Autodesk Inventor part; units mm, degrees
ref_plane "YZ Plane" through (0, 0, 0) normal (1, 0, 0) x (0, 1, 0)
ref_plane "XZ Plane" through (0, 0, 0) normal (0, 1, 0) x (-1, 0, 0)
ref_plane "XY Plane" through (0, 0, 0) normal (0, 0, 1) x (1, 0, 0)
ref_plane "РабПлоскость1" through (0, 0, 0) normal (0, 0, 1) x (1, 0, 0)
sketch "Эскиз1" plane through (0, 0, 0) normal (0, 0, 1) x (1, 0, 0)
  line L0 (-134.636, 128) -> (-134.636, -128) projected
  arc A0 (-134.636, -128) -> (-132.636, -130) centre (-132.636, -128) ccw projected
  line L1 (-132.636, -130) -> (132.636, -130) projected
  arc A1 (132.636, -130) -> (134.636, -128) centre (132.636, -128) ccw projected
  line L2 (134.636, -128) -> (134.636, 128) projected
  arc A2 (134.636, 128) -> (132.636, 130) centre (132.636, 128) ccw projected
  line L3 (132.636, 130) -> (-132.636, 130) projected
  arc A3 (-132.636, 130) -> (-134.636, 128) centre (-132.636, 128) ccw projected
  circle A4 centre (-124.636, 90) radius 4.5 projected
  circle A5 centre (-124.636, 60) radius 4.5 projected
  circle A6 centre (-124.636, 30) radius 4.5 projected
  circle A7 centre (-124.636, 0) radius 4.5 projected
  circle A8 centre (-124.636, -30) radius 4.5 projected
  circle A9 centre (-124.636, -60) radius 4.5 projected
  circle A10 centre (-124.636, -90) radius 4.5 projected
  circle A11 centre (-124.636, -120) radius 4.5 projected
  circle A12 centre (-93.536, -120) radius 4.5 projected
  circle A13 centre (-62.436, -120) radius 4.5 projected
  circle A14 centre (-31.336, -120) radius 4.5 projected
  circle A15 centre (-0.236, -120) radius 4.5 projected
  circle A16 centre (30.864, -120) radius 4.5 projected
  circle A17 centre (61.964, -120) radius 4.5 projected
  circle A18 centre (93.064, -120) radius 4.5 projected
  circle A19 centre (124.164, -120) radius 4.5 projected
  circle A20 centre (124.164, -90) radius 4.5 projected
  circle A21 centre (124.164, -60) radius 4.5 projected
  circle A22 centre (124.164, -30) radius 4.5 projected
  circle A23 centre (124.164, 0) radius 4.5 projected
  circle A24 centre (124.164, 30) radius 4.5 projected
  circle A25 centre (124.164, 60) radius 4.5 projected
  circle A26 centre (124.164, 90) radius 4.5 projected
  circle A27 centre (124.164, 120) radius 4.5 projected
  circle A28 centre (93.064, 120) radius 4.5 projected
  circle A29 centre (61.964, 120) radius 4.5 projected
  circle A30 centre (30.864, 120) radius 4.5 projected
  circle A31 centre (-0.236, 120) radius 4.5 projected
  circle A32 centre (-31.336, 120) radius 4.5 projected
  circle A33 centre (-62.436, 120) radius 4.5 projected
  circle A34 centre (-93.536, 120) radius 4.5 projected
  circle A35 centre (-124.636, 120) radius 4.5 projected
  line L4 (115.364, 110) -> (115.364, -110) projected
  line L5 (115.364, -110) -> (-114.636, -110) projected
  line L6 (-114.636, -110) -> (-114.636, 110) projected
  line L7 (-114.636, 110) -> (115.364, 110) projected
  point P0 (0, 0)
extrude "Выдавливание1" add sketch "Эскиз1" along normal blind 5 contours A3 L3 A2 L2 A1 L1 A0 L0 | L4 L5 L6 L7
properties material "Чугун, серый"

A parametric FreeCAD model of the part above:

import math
import FreeCAD as App
import Part
import Sketcher

doc = App.newDocument("Part")
body = doc.addObject("PartDesign::Body", "Body")

sketch1 = body.newObject("Sketcher::SketchObject", "Sketch")
sketch1.AttachmentSupport = (doc.getObject("XY_Plane"), [""])
sketch1.MapMode = "FlatFace"
sketch1.addGeometry(Part.ArcOfCircle(Part.Circle(App.Vector(-132.636, 128, 0), App.Vector(0, 0, 1), 2), math.radians(90), math.radians(180)), False)
sketch1.addGeometry(Part.LineSegment(App.Vector(-134.636, 128, 0), App.Vector(-134.636, -128, 0)), False)
sketch1.addGeometry(Part.ArcOfCircle(Part.Circle(App.Vector(-132.636, -128, 0), App.Vector(0, 0, 1), 2), math.radians(180), math.radians(270)), False)
sketch1.addGeometry(Part.LineSegment(App.Vector(-132.636, -130, 0), App.Vector(132.636, -130, 0)), False)
sketch1.addGeometry(Part.ArcOfCircle(Part.Circle(App.Vector(132.636, -128, 0), App.Vector(0, 0, 1), 2), math.radians(-90), math.radians(0)), False)
sketch1.addGeometry(Part.LineSegment(App.Vector(134.636, -128, 0), App.Vector(134.636, 128, 0)), False)
sketch1.addGeometry(Part.ArcOfCircle(Part.Circle(App.Vector(132.636, 128, 0), App.Vector(0, 0, 1), 2), math.radians(0), math.radians(90)), False)
sketch1.addGeometry(Part.LineSegment(App.Vector(132.636, 130, 0), App.Vector(-132.636, 130, 0)), False)
sketch1.addGeometry(Part.Circle(App.Vector(-124.636, -120, 0), App.Vector(0, 0, 1), 4.5), False)
sketch1.addGeometry(Part.Circle(App.Vector(-93.536, -120, 0), App.Vector(0, 0, 1), 4.5), False)
sketch1.addGeometry(Part.Circle(App.Vector(-124.636, -90, 0), App.Vector(0, 0, 1), 4.5), False)
sketch1.addGeometry(Part.Circle(App.Vector(-62.436, -120, 0), App.Vector(0, 0, 1), 4.5), False)
sketch1.addGeometry(Part.Circle(App.Vector(-31.336, -120, 0), App.Vector(0, 0, 1), 4.5), False)
sketch1.addGeometry(Part.Circle(App.Vector(-0.236, -120, 0), App.Vector(0, 0, 1), 4.5), False)
sketch1.addGeometry(Part.Circle(App.Vector(-124.636, -60, 0), App.Vector(0, 0, 1), 4.5), False)
sketch1.addGeometry(Part.Circle(App.Vector(-124.636, -30, 0), App.Vector(0, 0, 1), 4.5), False)
sketch1.addGeometry(Part.Circle(App.Vector(30.864, -120, 0), App.Vector(0, 0, 1), 4.5), False)
sketch1.addGeometry(Part.Circle(App.Vector(61.964, -120, 0), App.Vector(0, 0, 1), 4.5), False)
sketch1.addGeometry(Part.Circle(App.Vector(93.064, -120, 0), App.Vector(0, 0, 1), 4.5), False)
sketch1.addGeometry(Part.Circle(App.Vector(124.164, -120, 0), App.Vector(0, 0, 1), 4.5), False)
sketch1.addGeometry(Part.Circle(App.Vector(124.164, -90, 0), App.Vector(0, 0, 1), 4.5), False)
sketch1.addGeometry(Part.Circle(App.Vector(124.164, -60, 0), App.Vector(0, 0, 1), 4.5), False)
sketch1.addGeometry(Part.Circle(App.Vector(124.164, -30, 0), App.Vector(0, 0, 1), 4.5), False)
sketch1.addGeometry(Part.Circle(App.Vector(-124.636, 0, 0), App.Vector(0, 0, 1), 4.5), False)
sketch1.addGeometry(Part.Circle(App.Vector(-124.636, 30, 0), App.Vector(0, 0, 1), 4.5), False)
sketch1.addGeometry(Part.Circle(App.Vector(-124.636, 60, 0), App.Vector(0, 0, 1), 4.5), False)
sketch1.addGeometry(Part.Circle(App.Vector(-124.636, 90, 0), App.Vector(0, 0, 1), 4.5), False)
sketch1.addGeometry(Part.Circle(App.Vector(-124.636, 120, 0), App.Vector(0, 0, 1), 4.5), False)
sketch1.addGeometry(Part.Circle(App.Vector(-93.536, 120, 0), App.Vector(0, 0, 1), 4.5), False)
sketch1.addGeometry(Part.Circle(App.Vector(-62.436, 120, 0), App.Vector(0, 0, 1), 4.5), False)
sketch1.addGeometry(Part.Circle(App.Vector(-31.336, 120, 0), App.Vector(0, 0, 1), 4.5), False)
sketch1.addGeometry(Part.Circle(App.Vector(-0.236, 120, 0), App.Vector(0, 0, 1), 4.5), False)
sketch1.addGeometry(Part.Circle(App.Vector(124.164, 0, 0), App.Vector(0, 0, 1), 4.5), False)
sketch1.addGeometry(Part.Circle(App.Vector(124.164, 30, 0), App.Vector(0, 0, 1), 4.5), False)
sketch1.addGeometry(Part.Circle(App.Vector(124.164, 60, 0), App.Vector(0, 0, 1), 4.5), False)
sketch1.addGeometry(Part.Circle(App.Vector(30.864, 120, 0), App.Vector(0, 0, 1), 4.5), False)
sketch1.addGeometry(Part.Circle(App.Vector(61.964, 120, 0), App.Vector(0, 0, 1), 4.5), False)
sketch1.addGeometry(Part.Circle(App.Vector(124.164, 90, 0), App.Vector(0, 0, 1), 4.5), False)
sketch1.addGeometry(Part.Circle(App.Vector(93.064, 120, 0), App.Vector(0, 0, 1), 4.5), False)
sketch1.addGeometry(Part.Circle(App.Vector(124.164, 120, 0), App.Vector(0, 0, 1), 4.5), False)
sketch1.addConstraint(Sketcher.Constraint("Tangent", 0, 2, 1, 1))
sketch1.addConstraint(Sketcher.Constraint("Tangent", 1, 2, 2, 1))
sketch1.addConstraint(Sketcher.Constraint("Tangent", 2, 2, 3, 1))
sketch1.addConstraint(Sketcher.Constraint("Tangent", 3, 2, 4, 1))
sketch1.addConstraint(Sketcher.Constraint("Tangent", 4, 2, 5, 1))
sketch1.addConstraint(Sketcher.Constraint("Tangent", 5, 2, 6, 1))
sketch1.addConstraint(Sketcher.Constraint("Tangent", 6, 2, 7, 1))
sketch1.addConstraint(Sketcher.Constraint("Tangent", 7, 2, 0, 1))
sketch1.addConstraint(Sketcher.Constraint("Vertical", 1))
sketch1.addConstraint(Sketcher.Constraint("Horizontal", 3))
sketch1.addConstraint(Sketcher.Constraint("Vertical", 5))
sketch1.addConstraint(Sketcher.Constraint("Horizontal", 7))
sketch1.addConstraint(Sketcher.Constraint("Equal", 0, 2))
sketch1.addConstraint(Sketcher.Constraint("Equal", 2, 4))
sketch1.addConstraint(Sketcher.Constraint("Equal", 4, 6))
sketch1.addConstraint(Sketcher.Constraint("Equal", 8, 9))
sketch1.addConstraint(Sketcher.Constraint("Equal", 9, 10))
sketch1.addConstraint(Sketcher.Constraint("Equal", 10, 11))
sketch1.addConstraint(Sketcher.Constraint("Equal", 11, 12))
sketch1.addConstraint(Sketcher.Constraint("Equal", 12, 13))
sketch1.addConstraint(Sketcher.Constraint("Equal", 13, 14))
sketch1.addConstraint(Sketcher.Constraint("Equal", 14, 15))
sketch1.addConstraint(Sketcher.Constraint("Equal", 15, 16))
sketch1.addConstraint(Sketcher.Constraint("Equal", 16, 17))
sketch1.addConstraint(Sketcher.Constraint("Equal", 17, 18))
sketch1.addConstraint(Sketcher.Constraint("Equal", 18, 19))
sketch1.addConstraint(Sketcher.Constraint("Equal", 19, 20))
sketch1.addConstraint(Sketcher.Constraint("Equal", 20, 21))
sketch1.addConstraint(Sketcher.Constraint("Equal", 21, 22))
sketch1.addConstraint(Sketcher.Constraint("Equal", 22, 23))
sketch1.addConstraint(Sketcher.Constraint("Equal", 23, 24))
sketch1.addConstraint(Sketcher.Constraint("Equal", 24, 25))
sketch1.addConstraint(Sketcher.Constraint("Equal", 25, 26))
sketch1.addConstraint(Sketcher.Constraint("Equal", 26, 27))
sketch1.addConstraint(Sketcher.Constraint("Equal", 27, 28))
sketch1.addConstraint(Sketcher.Constraint("Equal", 28, 29))
sketch1.addConstraint(Sketcher.Constraint("Equal", 29, 30))
sketch1.addConstraint(Sketcher.Constraint("Equal", 30, 31))
sketch1.addConstraint(Sketcher.Constraint("Equal", 31, 32))
sketch1.addConstraint(Sketcher.Constraint("Equal", 32, 33))
sketch1.addConstraint(Sketcher.Constraint("Equal", 33, 34))
sketch1.addConstraint(Sketcher.Constraint("Equal", 34, 35))
sketch1.addConstraint(Sketcher.Constraint("Equal", 35, 36))
sketch1.addConstraint(Sketcher.Constraint("Equal", 36, 37))
sketch1.addConstraint(Sketcher.Constraint("Equal", 37, 38))
sketch1.addConstraint(Sketcher.Constraint("Equal", 38, 39))
sketch1.addConstraint(Sketcher.Constraint("Symmetric", 0, 3, 4, 3, -1, 1))
sketch1.addConstraint(Sketcher.Constraint("Symmetric", 15, 3, 24, 3, -1))
sketch1.addConstraint(Sketcher.Constraint("Symmetric", 14, 3, 25, 3, -1))
sketch1.addConstraint(Sketcher.Constraint("Symmetric", 10, 3, 26, 3, -1))
sketch1.addConstraint(Sketcher.Constraint("Symmetric", 8, 3, 27, 3, -1))
sketch1.addConstraint(Sketcher.Constraint("Symmetric", 9, 3, 28, 3, -1))
sketch1.addConstraint(Sketcher.Constraint("Symmetric", 11, 3, 29, 3, -1))
sketch1.addConstraint(Sketcher.Constraint("Symmetric", 12, 3, 30, 3, -1))
sketch1.addConstraint(Sketcher.Constraint("Symmetric", 13, 3, 31, 3, -1))
sketch1.addConstraint(Sketcher.Constraint("Symmetric", 22, 3, 33, 3, -1))
sketch1.addConstraint(Sketcher.Constraint("Symmetric", 21, 3, 34, 3, -1))
sketch1.addConstraint(Sketcher.Constraint("Symmetric", 16, 3, 35, 3, -1))
sketch1.addConstraint(Sketcher.Constraint("Symmetric", 17, 3, 36, 3, -1))
sketch1.addConstraint(Sketcher.Constraint("Symmetric", 20, 3, 37, 3, -1))
sketch1.addConstraint(Sketcher.Constraint("Symmetric", 18, 3, 38, 3, -1))
sketch1.addConstraint(Sketcher.Constraint("Symmetric", 19, 3, 39, 3, -1))
sketch1.addConstraint(Sketcher.Constraint("PointOnObject", 23, 3, -1))
sketch1.addConstraint(Sketcher.Constraint("PointOnObject", 32, 3, -1))
sketch1.addConstraint(Sketcher.Constraint("Horizontal", 8, 3, 9, 3))
sketch1.addConstraint(Sketcher.Constraint("Horizontal", 9, 3, 11, 3))
sketch1.addConstraint(Sketcher.Constraint("Horizontal", 11, 3, 12, 3))
sketch1.addConstraint(Sketcher.Constraint("Horizontal", 12, 3, 13, 3))
sketch1.addConstraint(Sketcher.Constraint("Horizontal", 13, 3, 16, 3))
sketch1.addConstraint(Sketcher.Constraint("Horizontal", 16, 3, 17, 3))
sketch1.addConstraint(Sketcher.Constraint("Horizontal", 17, 3, 18, 3))
sketch1.addConstraint(Sketcher.Constraint("Horizontal", 18, 3, 19, 3))
sketch1.addConstraint(Sketcher.Constraint("Horizontal", 10, 3, 20, 3))
sketch1.addConstraint(Sketcher.Constraint("Horizontal", 14, 3, 21, 3))
sketch1.addConstraint(Sketcher.Constraint("Horizontal", 15, 3, 22, 3))
sketch1.addConstraint(Sketcher.Constraint("Vertical", 8, 3, 10, 3))
sketch1.addConstraint(Sketcher.Constraint("Vertical", 10, 3, 14, 3))
sketch1.addConstraint(Sketcher.Constraint("Vertical", 14, 3, 15, 3))
sketch1.addConstraint(Sketcher.Constraint("Vertical", 19, 3, 20, 3))
sketch1.addConstraint(Sketcher.Constraint("Vertical", 20, 3, 21, 3))
sketch1.addConstraint(Sketcher.Constraint("Vertical", 21, 3, 22, 3))
sketch1.addConstraint(Sketcher.Constraint("Vertical", 15, 3, 23, 3))
sketch1.addConstraint(Sketcher.Constraint("Vertical", 22, 3, 32, 3))
sketch1.addConstraint(Sketcher.Constraint("Diameter", 8, 9.0))
sketch1.addConstraint(Sketcher.Constraint("Radius", 0, 2.0))
sketch1.addConstraint(Sketcher.Constraint("DistanceY", 1, 2, 1, 1, 256.0))
sketch1.addConstraint(Sketcher.Constraint("DistanceY", 8, 3, -1, 1, 120.0))
sketch1.addConstraint(Sketcher.Constraint("DistanceY", 10, 3, -1, 1, 90.0))
sketch1.addConstraint(Sketcher.Constraint("DistanceY", 14, 3, -1, 1, 60.0))
sketch1.addConstraint(Sketcher.Constraint("DistanceY", 15, 3, -1, 1, 30.0))
sketch1.addConstraint(Sketcher.Constraint("DistanceX", 2, 3, 8, 3, 8.0))
sketch1.addConstraint(Sketcher.Constraint("DistanceX", 8, 3, 9, 3, 31.1))
sketch1.addConstraint(Sketcher.Constraint("DistanceX", 9, 3, 11, 3, 31.1))
sketch1.addConstraint(Sketcher.Constraint("DistanceX", 11, 3, 12, 3, 31.1))
sketch1.addConstraint(Sketcher.Constraint("DistanceX", 12, 3, 13, 3, 31.1))
sketch1.addConstraint(Sketcher.Constraint("DistanceX", 13, 3, 16, 3, 31.1))
sketch1.addConstraint(Sketcher.Constraint("DistanceX", 16, 3, 17, 3, 31.1))
sketch1.addConstraint(Sketcher.Constraint("DistanceX", 17, 3, 18, 3, 31.1))
sketch1.addConstraint(Sketcher.Constraint("DistanceX", 18, 3, 19, 3, 31.1))
sketch1.addConstraint(Sketcher.Constraint("DistanceX", 3, 1, 3, 2, 265.272))
pad1 = body.newObject("PartDesign::Pad", "Pad")
pad1.Profile = sketch1
pad1.Length = 5

doc.recompute()
